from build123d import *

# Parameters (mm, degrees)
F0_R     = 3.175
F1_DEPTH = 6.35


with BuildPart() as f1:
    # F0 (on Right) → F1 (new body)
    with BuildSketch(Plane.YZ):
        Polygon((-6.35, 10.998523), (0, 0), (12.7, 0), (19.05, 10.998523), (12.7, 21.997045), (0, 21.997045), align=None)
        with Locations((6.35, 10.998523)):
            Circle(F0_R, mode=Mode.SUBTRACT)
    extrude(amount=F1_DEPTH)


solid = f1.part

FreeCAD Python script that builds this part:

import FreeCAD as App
import Part
import Sketcher
Q = App.Units.Quantity


def add_polygon(sketch, points):
    """Adds a closed chain of lines whose ends are joined by coincident constraints."""
    first, n = sketch.GeometryCount, len(points)
    for a, b in zip(points, points[1:] + points[:1]):
        sketch.addGeometry(Part.LineSegment(App.Vector(*a, 0), App.Vector(*b, 0)), False)
    for i in range(n):
        sketch.addConstraint(Sketcher.Constraint("Coincident", first + i, 2, first + (i + 1) % n, 1))

doc = App.newDocument("Part")
body = doc.addObject("PartDesign::Body", "Body")

# Sketch on YZ plane
sketch1 = body.newObject("Sketcher::SketchObject", "Sketch")
sketch1.AttachmentSupport = (doc.getObject("YZ_Plane"), [""])
sketch1.MapMode = "FlatFace"
add_polygon(sketch1, [(-6.3, 11), (0, 0), (12.7, 0), (19.1, 11), (12.7, 22), (0, 22)])  # lines 0-5
sketch1.addGeometry(Part.Circle(App.Vector(6.3, 11, 0), App.Vector(0, 0, 1), 3.2), False)  # 6
sketch1.addConstraint([
    Sketcher.Constraint("Horizontal", 1),
    Sketcher.Constraint("Horizontal", 4),
    Sketcher.Constraint("Coincident", 0, 2, -1, 1),
    Sketcher.Constraint("PointOnObject", 4, 2, -2),
    Sketcher.Constraint("Parallel", 0, 3),
    Sketcher.Constraint("Parallel", 2, 5),
    Sketcher.Constraint("Horizontal", 6, 3, 2, 2),
    Sketcher.Constraint("Horizontal", 2, 2, 5, 2),
    Sketcher.Constraint("Vertical", 1, 2, 3, 2),
    Sketcher.Constraint("Diameter", 6, Q("0.25 in")),
    Sketcher.Constraint("DistanceX", 1, 1, 1, 2, Q("0.5 in")),
    Sketcher.Constraint("Angle", 0, Q("-60.000001 deg")),
    Sketcher.Constraint("Distance", 0, Q("0.5 in")),
    Sketcher.Constraint("DistanceX", 6, 3, 2, 2, Q("0.5 in")),
])
pad1 = body.newObject("PartDesign::Pad", "Pad")
pad1.Profile = sketch1
pad1.Length = Q("0.25 in")

doc.recompute()
